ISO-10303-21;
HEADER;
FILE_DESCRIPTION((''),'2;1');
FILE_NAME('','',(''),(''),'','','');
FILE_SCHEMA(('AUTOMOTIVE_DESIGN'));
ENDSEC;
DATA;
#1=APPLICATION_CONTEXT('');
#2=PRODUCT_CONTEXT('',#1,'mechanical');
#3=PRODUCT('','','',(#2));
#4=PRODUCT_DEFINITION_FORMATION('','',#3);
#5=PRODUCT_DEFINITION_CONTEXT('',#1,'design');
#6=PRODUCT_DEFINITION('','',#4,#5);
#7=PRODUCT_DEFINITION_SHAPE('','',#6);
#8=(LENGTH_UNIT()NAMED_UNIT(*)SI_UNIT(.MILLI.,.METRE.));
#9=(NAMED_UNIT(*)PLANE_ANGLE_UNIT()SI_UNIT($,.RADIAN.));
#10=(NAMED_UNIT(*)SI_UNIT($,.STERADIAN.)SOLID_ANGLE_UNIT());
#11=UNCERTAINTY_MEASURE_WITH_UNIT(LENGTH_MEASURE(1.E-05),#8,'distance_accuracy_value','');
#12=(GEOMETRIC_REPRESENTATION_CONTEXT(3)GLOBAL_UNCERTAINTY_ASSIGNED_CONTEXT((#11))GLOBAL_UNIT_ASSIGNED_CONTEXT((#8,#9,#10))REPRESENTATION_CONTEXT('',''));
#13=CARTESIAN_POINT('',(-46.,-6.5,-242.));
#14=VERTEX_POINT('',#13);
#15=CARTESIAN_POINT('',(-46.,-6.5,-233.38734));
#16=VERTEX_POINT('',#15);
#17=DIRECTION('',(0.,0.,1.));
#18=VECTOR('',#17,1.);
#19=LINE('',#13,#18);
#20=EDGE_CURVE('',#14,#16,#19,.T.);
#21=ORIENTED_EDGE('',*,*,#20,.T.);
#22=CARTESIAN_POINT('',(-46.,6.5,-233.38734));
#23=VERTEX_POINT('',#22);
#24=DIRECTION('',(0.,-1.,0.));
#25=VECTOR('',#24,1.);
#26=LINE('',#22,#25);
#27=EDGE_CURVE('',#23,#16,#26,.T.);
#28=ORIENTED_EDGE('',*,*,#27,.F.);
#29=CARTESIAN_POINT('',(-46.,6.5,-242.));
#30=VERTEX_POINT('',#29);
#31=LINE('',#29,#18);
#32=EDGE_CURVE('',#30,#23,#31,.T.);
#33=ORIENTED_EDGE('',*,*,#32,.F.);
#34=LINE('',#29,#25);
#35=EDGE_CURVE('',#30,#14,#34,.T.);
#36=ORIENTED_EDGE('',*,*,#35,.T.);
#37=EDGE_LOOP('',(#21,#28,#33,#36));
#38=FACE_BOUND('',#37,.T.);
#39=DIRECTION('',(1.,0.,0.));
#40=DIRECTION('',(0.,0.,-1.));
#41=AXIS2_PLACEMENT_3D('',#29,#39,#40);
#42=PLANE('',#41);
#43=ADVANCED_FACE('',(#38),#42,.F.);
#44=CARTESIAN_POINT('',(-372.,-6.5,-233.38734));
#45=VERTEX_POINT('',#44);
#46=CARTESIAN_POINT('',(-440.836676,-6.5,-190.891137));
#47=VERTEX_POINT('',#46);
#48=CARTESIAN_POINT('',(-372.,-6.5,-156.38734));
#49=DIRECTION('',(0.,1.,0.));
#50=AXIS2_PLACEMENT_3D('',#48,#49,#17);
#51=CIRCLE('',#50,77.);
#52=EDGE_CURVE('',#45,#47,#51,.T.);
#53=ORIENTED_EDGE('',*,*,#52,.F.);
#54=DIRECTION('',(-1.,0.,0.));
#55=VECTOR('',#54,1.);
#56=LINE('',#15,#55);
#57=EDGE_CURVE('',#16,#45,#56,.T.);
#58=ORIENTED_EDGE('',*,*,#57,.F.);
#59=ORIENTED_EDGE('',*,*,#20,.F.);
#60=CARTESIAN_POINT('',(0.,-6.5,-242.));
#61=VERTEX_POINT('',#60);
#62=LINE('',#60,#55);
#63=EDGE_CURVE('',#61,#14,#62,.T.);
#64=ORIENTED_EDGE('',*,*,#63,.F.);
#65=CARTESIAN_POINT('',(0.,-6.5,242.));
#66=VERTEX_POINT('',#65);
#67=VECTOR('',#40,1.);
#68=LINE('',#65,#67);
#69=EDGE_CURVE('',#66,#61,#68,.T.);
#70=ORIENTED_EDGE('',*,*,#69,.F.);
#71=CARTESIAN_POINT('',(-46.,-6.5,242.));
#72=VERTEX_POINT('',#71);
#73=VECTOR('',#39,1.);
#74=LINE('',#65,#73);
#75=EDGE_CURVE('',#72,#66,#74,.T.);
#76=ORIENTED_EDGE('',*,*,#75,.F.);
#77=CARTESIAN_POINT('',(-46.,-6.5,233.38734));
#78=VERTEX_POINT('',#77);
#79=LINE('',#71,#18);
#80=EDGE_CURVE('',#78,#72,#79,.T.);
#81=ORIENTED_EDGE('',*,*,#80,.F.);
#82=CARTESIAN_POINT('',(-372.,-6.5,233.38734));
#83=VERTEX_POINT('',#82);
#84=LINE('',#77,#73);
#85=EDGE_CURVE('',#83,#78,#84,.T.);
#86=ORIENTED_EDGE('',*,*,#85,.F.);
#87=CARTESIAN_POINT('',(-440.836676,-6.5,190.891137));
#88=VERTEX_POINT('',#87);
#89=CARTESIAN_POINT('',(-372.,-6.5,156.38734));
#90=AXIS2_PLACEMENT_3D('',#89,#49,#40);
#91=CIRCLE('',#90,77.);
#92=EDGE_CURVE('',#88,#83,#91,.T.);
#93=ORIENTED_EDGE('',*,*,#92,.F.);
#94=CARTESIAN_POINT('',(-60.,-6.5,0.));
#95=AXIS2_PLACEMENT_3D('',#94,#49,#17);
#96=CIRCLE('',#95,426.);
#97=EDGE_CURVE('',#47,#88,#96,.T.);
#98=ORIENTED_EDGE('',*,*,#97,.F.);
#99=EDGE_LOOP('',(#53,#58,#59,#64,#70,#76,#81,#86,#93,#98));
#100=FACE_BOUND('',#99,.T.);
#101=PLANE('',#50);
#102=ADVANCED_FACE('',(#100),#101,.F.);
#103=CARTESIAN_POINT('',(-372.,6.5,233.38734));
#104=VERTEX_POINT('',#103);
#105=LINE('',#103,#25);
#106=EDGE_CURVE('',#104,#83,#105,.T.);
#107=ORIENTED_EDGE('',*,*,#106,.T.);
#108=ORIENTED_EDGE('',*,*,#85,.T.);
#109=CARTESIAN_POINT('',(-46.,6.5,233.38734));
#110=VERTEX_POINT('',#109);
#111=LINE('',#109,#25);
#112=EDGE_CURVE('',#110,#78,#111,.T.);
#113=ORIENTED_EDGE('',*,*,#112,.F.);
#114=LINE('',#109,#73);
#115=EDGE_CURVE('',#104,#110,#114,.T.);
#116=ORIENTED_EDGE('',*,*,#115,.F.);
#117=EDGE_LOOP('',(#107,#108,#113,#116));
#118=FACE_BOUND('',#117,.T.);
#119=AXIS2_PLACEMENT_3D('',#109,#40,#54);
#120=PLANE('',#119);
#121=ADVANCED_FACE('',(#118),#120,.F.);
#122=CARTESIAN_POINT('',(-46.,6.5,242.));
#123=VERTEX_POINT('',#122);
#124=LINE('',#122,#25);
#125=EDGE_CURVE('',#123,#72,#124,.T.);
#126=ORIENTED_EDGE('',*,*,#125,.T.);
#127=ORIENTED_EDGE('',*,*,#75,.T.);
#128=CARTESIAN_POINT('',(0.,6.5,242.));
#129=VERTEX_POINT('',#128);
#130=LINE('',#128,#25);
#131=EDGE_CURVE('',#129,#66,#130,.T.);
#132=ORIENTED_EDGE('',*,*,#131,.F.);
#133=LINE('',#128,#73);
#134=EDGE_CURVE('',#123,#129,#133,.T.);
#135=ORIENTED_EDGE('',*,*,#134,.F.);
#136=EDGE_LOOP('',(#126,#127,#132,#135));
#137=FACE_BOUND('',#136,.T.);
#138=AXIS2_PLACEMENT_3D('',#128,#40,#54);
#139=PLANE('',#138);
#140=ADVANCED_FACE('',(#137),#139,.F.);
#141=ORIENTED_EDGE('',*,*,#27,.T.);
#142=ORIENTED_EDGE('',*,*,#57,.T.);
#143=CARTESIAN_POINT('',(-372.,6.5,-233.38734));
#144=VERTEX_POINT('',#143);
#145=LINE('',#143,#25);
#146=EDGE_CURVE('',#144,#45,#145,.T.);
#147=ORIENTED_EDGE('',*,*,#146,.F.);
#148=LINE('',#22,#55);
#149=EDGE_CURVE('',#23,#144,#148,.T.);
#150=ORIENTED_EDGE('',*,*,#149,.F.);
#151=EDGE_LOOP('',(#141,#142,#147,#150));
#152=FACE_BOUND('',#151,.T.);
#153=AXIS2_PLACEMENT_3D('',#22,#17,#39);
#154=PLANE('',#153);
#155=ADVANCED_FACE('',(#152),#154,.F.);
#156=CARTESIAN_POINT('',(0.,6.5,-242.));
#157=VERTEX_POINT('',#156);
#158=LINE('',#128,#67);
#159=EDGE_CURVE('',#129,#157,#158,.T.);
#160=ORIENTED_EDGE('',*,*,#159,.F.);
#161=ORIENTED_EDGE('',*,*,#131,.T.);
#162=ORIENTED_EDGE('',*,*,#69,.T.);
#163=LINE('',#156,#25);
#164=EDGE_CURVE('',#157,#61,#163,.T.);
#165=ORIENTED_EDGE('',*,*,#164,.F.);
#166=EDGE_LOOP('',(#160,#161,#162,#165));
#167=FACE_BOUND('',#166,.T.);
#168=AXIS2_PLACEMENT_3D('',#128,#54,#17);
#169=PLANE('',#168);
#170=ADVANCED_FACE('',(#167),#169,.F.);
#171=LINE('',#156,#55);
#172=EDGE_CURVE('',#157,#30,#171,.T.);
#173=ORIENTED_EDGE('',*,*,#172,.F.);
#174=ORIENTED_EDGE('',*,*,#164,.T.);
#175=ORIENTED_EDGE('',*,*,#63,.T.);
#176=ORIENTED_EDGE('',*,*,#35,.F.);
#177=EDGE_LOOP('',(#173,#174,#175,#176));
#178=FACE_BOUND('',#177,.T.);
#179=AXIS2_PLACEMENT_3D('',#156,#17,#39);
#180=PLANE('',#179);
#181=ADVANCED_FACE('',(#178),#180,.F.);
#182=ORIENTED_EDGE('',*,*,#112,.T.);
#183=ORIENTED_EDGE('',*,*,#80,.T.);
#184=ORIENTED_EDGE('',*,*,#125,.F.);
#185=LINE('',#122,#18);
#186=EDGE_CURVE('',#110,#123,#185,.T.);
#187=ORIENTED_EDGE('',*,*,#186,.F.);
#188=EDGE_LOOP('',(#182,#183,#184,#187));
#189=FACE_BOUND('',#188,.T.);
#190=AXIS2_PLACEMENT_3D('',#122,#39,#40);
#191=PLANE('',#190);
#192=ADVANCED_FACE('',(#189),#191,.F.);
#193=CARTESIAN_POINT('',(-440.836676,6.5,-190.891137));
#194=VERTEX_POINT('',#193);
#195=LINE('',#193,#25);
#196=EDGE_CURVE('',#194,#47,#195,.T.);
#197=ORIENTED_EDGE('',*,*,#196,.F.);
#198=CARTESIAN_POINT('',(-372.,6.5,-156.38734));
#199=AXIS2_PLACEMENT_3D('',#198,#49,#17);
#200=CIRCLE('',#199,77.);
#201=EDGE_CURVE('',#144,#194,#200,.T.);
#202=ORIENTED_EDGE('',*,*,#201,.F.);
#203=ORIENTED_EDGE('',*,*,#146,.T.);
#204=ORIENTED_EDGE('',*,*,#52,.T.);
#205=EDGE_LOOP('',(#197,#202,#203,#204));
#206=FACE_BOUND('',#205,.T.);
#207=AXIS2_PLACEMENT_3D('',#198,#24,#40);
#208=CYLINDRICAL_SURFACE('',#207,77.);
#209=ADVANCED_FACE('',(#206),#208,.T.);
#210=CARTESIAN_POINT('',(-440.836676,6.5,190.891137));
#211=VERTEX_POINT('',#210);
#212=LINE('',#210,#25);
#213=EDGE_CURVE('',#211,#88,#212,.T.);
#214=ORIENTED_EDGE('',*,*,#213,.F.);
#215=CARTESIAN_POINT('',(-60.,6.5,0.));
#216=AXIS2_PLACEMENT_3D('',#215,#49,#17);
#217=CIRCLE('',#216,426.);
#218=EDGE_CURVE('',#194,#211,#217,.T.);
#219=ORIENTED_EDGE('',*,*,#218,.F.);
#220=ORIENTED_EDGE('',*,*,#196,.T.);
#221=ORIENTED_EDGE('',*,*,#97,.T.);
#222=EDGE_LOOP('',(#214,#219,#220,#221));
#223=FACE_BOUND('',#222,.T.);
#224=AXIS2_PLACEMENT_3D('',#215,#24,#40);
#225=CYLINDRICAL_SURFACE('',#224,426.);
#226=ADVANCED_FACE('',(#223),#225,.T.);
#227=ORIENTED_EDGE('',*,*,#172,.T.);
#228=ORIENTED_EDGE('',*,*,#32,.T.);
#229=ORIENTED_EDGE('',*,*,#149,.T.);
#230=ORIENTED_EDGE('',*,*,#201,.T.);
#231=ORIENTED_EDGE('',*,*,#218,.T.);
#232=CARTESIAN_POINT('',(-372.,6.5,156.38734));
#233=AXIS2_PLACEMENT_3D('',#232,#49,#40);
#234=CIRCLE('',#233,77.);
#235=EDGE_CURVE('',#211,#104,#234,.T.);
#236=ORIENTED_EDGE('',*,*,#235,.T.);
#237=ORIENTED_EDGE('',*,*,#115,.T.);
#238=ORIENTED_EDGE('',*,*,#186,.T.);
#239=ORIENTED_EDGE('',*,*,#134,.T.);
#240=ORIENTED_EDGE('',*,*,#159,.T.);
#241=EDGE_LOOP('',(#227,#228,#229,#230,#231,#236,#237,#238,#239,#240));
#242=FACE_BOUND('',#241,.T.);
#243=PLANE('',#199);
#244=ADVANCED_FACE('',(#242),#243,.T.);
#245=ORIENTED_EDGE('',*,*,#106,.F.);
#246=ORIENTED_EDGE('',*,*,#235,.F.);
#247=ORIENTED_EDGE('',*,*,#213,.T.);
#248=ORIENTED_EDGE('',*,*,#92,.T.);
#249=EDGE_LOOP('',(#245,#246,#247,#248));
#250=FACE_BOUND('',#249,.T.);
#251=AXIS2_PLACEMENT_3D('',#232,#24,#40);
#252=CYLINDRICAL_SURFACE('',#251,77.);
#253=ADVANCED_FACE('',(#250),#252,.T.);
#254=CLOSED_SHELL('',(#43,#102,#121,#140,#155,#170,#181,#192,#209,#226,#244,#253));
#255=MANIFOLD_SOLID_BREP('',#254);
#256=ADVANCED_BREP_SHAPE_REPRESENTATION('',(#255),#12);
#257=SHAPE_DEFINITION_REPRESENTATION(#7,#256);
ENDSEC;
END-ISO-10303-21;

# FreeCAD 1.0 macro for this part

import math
import FreeCAD as App
import Part
import Sketcher

V = App.Vector
Q = App.Units.Quantity

doc = App.newDocument("Part")
params = doc.addObject("Spreadsheet::Sheet", "Params")
for row, (alias, value) in enumerate([
    ("sketch1_radius", "77 mm"),
    ("sketch1_radius2", "426 mm"),
    ("sketch1_width", "46 mm"),
    ("sketch1_width2", "326 mm"),
    ("sketch1_height", "484 mm"),
    ("pad1_length", "13 mm"),
], start=1):
    params.set(f"A{row}", alias)
    params.set(f"B{row}", "=" + value)
    params.setAlias(f"B{row}", alias)

body = doc.addObject("PartDesign::Body", "Body")

sketch1 = body.newObject("Sketcher::SketchObject", "Sketch")
sketch1.AttachmentSupport = (doc.getObject("XZ_Plane"), [""])
sketch1.MapMode = "FlatFace"
sketch1.addGeometry(Part.LineSegment(V(0, 242, 0), V(0, -242, 0)), False)
sketch1.addGeometry(Part.LineSegment(V(0, -242, 0), V(-46, -242, 0)), False)
sketch1.addGeometry(Part.LineSegment(V(-46, -242, 0), V(-46, -233, 0)), False)
sketch1.addGeometry(Part.LineSegment(V(-46, -233, 0), V(-372, -233, 0)), False)
sketch1.addGeometry(Part.ArcOfCircle(Part.Circle(V(-372, -156, 0), V(0, 0, 1), 77), math.radians(-153), math.radians(-90)), False)
sketch1.addGeometry(Part.ArcOfCircle(Part.Circle(V(-60, 0, 0), V(0, 0, 1), 426), math.radians(153), math.radians(207)), False)
sketch1.addGeometry(Part.ArcOfCircle(Part.Circle(V(-372, 156, 0), V(0, 0, 1), 77), math.radians(90), math.radians(153)), False)
sketch1.addGeometry(Part.LineSegment(V(-372, 233, 0), V(-46, 233, 0)), False)
sketch1.addGeometry(Part.LineSegment(V(-46, 233, 0), V(-46, 242, 0)), False)
sketch1.addGeometry(Part.LineSegment(V(-46, 242, 0), V(0, 242, 0)), False)
sketch1.addConstraint(Sketcher.Constraint("Coincident", 0, 2, 1, 1))
sketch1.addConstraint(Sketcher.Constraint("Coincident", 1, 2, 2, 1))
sketch1.addConstraint(Sketcher.Constraint("Coincident", 2, 2, 3, 1))
sketch1.addConstraint(Sketcher.Constraint("Tangent", 3, 2, 4, 2))
sketch1.addConstraint(Sketcher.Constraint("Tangent", 4, 1, 5, 2))
sketch1.addConstraint(Sketcher.Constraint("Tangent", 5, 1, 6, 2))
sketch1.addConstraint(Sketcher.Constraint("Tangent", 6, 1, 7, 1))
sketch1.addConstraint(Sketcher.Constraint("Coincident", 7, 2, 8, 1))
sketch1.addConstraint(Sketcher.Constraint("Coincident", 8, 2, 9, 1))
sketch1.addConstraint(Sketcher.Constraint("Coincident", 9, 2, 0, 1))
sketch1.addConstraint(Sketcher.Constraint("Vertical", 0))
sketch1.addConstraint(Sketcher.Constraint("Horizontal", 1))
sketch1.addConstraint(Sketcher.Constraint("Vertical", 2))
sketch1.addConstraint(Sketcher.Constraint("Horizontal", 3))
sketch1.addConstraint(Sketcher.Constraint("Horizontal", 7))
sketch1.addConstraint(Sketcher.Constraint("Vertical", 8))
sketch1.addConstraint(Sketcher.Constraint("Horizontal", 9))
sketch1.addConstraint(Sketcher.Constraint("Equal", 4, 6))
sketch1.addConstraint(Sketcher.Constraint("Symmetric", 0, 2, 9, 2, -1, 1))
sketch1.addConstraint(Sketcher.Constraint("Symmetric", 4, 3, 6, 3, -1))
sketch1.addConstraint(Sketcher.Constraint("Vertical", 2, 2, 7, 2))
sketch1.addConstraint(Sketcher.Constraint("Radius", 4, Q("77 mm")))
sketch1.addConstraint(Sketcher.Constraint("Radius", 5, Q("426 mm")))
sketch1.addConstraint(Sketcher.Constraint("DistanceX", 1, 2, 1, 1, Q("46 mm")))
sketch1.addConstraint(Sketcher.Constraint("DistanceX", 3, 2, 3, 1, Q("326 mm")))
sketch1.addConstraint(Sketcher.Constraint("DistanceY", 0, 2, 0, 1, Q("484 mm")))
sketch1.addConstraint(Sketcher.Constraint("DistanceX", 5, 3, -1, 1, Q("60 mm")))
sketch1.setExpression("Constraints[21]", "Params.sketch1_radius")
sketch1.setExpression("Constraints[22]", "Params.sketch1_radius2")
sketch1.setExpression("Constraints[23]", "Params.sketch1_width")
sketch1.setExpression("Constraints[24]", "Params.sketch1_width2")
sketch1.setExpression("Constraints[25]", "Params.sketch1_height")
pad1 = body.newObject("PartDesign::Pad", "Pad")
pad1.Profile = sketch1
pad1.setExpression("Length", "Params.pad1_length")
pad1.Midplane = True

doc.recompute()
